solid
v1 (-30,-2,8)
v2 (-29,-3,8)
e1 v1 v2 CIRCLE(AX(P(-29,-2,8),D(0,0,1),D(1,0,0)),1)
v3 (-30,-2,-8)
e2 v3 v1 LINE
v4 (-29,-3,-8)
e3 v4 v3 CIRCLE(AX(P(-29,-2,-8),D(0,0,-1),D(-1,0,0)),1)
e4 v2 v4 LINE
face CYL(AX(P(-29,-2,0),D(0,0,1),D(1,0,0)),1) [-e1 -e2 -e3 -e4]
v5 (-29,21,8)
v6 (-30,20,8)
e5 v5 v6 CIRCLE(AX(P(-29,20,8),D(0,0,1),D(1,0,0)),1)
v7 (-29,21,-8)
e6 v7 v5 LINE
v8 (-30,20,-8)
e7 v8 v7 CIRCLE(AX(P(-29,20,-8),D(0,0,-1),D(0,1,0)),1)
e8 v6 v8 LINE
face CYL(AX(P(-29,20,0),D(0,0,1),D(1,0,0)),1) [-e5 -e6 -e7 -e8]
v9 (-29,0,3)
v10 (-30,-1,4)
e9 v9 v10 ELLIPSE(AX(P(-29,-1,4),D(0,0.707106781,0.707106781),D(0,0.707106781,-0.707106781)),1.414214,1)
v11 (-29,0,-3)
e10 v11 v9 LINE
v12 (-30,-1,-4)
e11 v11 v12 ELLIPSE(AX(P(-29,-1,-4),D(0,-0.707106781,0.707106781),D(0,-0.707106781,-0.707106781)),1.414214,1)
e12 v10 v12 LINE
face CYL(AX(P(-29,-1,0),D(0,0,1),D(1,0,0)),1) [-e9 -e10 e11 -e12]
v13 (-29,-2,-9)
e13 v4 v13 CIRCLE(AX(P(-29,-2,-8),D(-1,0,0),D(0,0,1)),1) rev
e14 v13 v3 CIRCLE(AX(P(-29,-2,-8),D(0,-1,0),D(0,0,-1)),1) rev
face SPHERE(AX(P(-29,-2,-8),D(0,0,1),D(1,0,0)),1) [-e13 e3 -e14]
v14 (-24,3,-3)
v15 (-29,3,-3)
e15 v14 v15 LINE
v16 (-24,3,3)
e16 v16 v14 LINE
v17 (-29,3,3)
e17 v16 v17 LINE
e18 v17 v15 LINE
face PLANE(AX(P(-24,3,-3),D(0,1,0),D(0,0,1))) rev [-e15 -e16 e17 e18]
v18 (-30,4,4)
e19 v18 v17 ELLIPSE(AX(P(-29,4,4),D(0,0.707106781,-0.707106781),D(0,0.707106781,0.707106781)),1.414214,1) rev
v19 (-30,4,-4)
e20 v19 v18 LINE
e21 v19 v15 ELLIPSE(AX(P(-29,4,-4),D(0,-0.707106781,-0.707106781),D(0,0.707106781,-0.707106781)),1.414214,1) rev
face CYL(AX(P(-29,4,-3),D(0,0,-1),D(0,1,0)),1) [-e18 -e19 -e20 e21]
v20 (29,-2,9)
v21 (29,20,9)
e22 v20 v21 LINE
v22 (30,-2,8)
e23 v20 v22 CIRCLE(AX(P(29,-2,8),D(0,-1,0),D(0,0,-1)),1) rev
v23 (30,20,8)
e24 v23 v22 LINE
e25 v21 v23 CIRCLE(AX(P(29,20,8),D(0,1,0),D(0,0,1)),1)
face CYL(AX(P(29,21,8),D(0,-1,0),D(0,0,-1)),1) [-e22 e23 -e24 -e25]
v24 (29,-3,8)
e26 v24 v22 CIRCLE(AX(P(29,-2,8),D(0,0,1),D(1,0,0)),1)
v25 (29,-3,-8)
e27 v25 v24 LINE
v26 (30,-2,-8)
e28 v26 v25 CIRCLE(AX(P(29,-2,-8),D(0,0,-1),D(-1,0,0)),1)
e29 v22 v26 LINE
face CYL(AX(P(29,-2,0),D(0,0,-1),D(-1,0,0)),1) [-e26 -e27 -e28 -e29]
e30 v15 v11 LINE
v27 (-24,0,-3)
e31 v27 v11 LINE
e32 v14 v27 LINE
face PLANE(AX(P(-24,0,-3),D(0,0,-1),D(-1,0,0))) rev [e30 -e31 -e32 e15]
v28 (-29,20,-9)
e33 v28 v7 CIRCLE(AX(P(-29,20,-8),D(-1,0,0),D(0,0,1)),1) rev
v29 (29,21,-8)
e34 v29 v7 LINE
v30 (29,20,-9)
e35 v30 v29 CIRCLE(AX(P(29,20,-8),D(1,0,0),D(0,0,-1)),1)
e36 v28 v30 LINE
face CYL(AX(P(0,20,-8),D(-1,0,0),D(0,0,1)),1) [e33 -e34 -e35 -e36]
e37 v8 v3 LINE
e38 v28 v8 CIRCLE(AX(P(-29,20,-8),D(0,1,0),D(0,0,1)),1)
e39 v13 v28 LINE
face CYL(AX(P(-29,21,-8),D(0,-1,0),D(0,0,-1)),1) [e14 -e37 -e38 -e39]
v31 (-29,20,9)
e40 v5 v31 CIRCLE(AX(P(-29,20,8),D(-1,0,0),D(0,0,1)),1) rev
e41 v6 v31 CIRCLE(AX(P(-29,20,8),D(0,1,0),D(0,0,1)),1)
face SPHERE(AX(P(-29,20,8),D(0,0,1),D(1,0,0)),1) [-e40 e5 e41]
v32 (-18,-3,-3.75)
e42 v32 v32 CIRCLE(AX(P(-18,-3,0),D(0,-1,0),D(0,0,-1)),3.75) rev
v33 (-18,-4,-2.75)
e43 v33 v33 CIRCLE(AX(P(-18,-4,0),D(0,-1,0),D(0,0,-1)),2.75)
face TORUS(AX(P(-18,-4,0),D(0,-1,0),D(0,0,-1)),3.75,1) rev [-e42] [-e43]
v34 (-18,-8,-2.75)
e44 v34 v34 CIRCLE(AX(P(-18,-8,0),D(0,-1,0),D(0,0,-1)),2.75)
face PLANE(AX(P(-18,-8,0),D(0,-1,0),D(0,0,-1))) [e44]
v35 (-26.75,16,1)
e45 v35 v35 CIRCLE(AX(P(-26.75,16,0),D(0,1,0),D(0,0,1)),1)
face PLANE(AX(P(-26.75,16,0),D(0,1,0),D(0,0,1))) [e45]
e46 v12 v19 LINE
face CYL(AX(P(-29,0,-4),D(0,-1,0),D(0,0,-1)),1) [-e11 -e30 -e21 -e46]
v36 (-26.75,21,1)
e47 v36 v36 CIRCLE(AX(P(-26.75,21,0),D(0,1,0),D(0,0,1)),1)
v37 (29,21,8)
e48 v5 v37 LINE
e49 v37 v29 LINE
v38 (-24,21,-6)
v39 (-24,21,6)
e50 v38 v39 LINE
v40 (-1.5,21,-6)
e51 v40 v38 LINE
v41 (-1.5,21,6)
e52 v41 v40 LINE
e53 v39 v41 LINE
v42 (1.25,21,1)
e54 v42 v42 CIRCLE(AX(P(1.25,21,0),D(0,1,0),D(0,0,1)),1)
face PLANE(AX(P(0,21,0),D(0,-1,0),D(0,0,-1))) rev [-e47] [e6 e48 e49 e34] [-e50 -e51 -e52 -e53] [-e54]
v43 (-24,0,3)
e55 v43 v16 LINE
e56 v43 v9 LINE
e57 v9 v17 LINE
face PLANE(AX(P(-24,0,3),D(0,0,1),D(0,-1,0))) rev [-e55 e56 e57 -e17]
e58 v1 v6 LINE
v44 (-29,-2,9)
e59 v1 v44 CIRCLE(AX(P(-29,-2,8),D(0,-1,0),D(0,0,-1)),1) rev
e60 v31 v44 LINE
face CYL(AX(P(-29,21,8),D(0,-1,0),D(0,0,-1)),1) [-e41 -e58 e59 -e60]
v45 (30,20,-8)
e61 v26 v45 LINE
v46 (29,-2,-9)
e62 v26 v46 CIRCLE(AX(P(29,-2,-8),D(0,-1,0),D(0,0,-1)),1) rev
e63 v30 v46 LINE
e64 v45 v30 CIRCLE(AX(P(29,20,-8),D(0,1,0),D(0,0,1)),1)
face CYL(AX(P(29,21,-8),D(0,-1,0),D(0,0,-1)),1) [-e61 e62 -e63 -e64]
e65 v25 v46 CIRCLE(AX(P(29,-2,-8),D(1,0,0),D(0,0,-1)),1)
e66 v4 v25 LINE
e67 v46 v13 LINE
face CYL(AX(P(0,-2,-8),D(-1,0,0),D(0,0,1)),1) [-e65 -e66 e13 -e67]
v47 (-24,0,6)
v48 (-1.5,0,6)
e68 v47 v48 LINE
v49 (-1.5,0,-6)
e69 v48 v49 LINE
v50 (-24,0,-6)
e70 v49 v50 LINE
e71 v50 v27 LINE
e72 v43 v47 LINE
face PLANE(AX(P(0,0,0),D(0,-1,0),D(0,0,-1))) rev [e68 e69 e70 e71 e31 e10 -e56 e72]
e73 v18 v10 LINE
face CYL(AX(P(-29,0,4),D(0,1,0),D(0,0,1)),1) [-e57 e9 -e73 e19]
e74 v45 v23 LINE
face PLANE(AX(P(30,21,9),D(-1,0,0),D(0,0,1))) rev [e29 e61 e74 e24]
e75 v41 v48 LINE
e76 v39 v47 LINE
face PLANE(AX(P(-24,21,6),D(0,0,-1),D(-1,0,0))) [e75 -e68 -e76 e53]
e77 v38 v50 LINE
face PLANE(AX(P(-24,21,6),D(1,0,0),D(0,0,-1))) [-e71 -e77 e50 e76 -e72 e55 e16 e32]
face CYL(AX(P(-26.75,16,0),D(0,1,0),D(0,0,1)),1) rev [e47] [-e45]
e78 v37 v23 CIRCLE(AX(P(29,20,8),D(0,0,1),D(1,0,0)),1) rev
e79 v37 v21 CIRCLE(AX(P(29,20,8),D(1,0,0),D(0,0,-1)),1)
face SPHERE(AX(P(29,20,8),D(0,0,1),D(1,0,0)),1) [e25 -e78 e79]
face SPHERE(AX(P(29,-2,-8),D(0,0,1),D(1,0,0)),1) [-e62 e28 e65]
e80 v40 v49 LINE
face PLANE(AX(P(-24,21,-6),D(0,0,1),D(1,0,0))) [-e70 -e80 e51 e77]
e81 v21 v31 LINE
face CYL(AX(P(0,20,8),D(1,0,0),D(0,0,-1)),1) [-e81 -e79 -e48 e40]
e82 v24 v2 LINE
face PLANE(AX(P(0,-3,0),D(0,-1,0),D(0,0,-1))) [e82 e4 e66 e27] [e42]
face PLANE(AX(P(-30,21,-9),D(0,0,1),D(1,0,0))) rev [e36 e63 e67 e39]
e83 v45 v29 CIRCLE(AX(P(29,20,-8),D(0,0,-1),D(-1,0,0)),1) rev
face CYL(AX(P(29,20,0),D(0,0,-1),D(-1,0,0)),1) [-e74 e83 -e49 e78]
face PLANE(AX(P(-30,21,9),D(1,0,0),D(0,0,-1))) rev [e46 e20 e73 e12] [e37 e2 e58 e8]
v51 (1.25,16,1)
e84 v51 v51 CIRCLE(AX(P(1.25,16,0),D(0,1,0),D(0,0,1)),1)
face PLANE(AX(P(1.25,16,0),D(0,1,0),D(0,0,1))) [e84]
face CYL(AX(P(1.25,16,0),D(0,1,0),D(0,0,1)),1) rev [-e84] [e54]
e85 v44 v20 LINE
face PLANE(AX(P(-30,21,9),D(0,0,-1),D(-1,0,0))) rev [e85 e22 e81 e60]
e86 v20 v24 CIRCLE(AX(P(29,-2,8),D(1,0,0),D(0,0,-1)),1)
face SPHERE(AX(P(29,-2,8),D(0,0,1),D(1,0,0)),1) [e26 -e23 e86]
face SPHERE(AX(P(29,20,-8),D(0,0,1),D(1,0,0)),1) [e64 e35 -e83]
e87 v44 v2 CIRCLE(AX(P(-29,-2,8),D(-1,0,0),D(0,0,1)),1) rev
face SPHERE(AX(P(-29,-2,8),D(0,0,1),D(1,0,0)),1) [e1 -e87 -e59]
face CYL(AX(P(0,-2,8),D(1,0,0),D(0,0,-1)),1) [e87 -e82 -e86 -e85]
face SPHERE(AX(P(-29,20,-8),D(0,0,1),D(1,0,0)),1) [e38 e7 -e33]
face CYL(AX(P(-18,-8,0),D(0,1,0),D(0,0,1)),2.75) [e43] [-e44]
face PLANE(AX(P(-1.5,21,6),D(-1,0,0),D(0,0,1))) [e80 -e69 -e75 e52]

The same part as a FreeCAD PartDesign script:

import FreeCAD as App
import Part
import Sketcher
from FreeCAD import Vector


def edges_at(feature, points):
    """Names of the edges that pass closest to the given points."""
    edges = feature.Shape.Edges
    near = lambda p: min(range(len(edges)), key=lambda i: edges[i].distToShape(Part.Vertex(*p))[0])
    return sorted({f"Edge{near(p) + 1}" for p in points})

doc = App.newDocument("Part")
params = doc.addObject("Spreadsheet::Sheet", "Params")
for row, (alias, value) in enumerate([
    ("sketch1_width", "60 mm"),
    ("sketch1_height", "18 mm"),
    ("sketch1_height2", "12 mm"),
    ("sketch1_width2", "22.5 mm"),
    ("pad1_length", "21 mm"),
    ("sketch2_width", "60 mm"),
    ("sketch2_height", "18 mm"),
    ("pad2_length", "3 mm"),
    ("sketch3_width", "3 mm"),
    ("sketch3_height", "6 mm"),
    ("pocket1_length", "6 mm"),
    ("sketch4_diameter", "5.5 mm"),
    ("pad3_length", "5 mm"),
    ("sketch5_diameter", "2 mm"),
    ("pocket2_length", "5 mm"),
    ("fillet_radius", "1 mm"),
], start=1):
    params.set(f"A{row}", alias)
    params.set(f"B{row}", "=" + value)
    params.setAlias(f"B{row}", alias)

body = doc.addObject("PartDesign::Body", "Body")

sketch1 = doc.addObject("Sketcher::SketchObject", "Sketch")
body.addObject(sketch1)
sketch1.AttachmentSupport = (doc.XZ_Plane, [""])
sketch1.MapMode = "FlatFace"
sketch1.addGeometry([
    Part.LineSegment(Vector(-30, -9, 0), Vector(-30, 9, 0)),
    Part.LineSegment(Vector(-30, 9, 0), Vector(30, 9, 0)),
    Part.LineSegment(Vector(30, 9, 0), Vector(30, -9, 0)),
    Part.LineSegment(Vector(30, -9, 0), Vector(-30, -9, 0)),
    Part.LineSegment(Vector(-2, 6, 0), Vector(-24, 6, 0)),
    Part.LineSegment(Vector(-24, 6, 0), Vector(-24, -6, 0)),
    Part.LineSegment(Vector(-24, -6, 0), Vector(-2, -6, 0)),
    Part.LineSegment(Vector(-2, -6, 0), Vector(-2, 6, 0)),
], False)
sketch1.addConstraint([
    Sketcher.Constraint("Coincident", 0, 2, 1, 1),
    Sketcher.Constraint("Coincident", 1, 2, 2, 1),
    Sketcher.Constraint("Coincident", 2, 2, 3, 1),
    Sketcher.Constraint("Coincident", 3, 2, 0, 1),
    Sketcher.Constraint("Coincident", 4, 2, 5, 1),
    Sketcher.Constraint("Coincident", 5, 2, 6, 1),
    Sketcher.Constraint("Coincident", 6, 2, 7, 1),
    Sketcher.Constraint("Coincident", 7, 2, 4, 1),
    Sketcher.Constraint("Vertical", 0),
    Sketcher.Constraint("Horizontal", 1),
    Sketcher.Constraint("Vertical", 2),
    Sketcher.Constraint("Horizontal", 3),
    Sketcher.Constraint("Horizontal", 4),
    Sketcher.Constraint("Vertical", 5),
    Sketcher.Constraint("Horizontal", 6),
    Sketcher.Constraint("Vertical", 7),
    Sketcher.Constraint("Symmetric", 0, 2, 2, 2, -1, 1),
    Sketcher.Constraint("DistanceX", 1, 1, 1, 2, 60.0),
    Sketcher.Constraint("DistanceY", 0, 1, 0, 2, 18.0),
    Sketcher.Constraint("DistanceY", 5, 2, 5, 1, 12.0),
    Sketcher.Constraint("DistanceX", 4, 2, 4, 1, 22.5),
    Sketcher.Constraint("DistanceX", 4, 2, -1, 1, 24.0),
    Sketcher.Constraint("DistanceY", -1, 1, 4, 2, 6.0),
])
sketch1.setExpression("Constraints[17]", "Params.sketch1_width")
sketch1.setExpression("Constraints[18]", "Params.sketch1_height")
sketch1.setExpression("Constraints[19]", "Params.sketch1_height2")
sketch1.setExpression("Constraints[20]", "Params.sketch1_width2")
pad1 = doc.addObject("PartDesign::Pad", "Pad")
body.addObject(pad1)
pad1.Profile = sketch1
pad1.setExpression("Length", "Params.pad1_length")
pad1.Reversed = True

sketch2 = doc.addObject("Sketcher::SketchObject", "Sketch001")
body.addObject(sketch2)
sketch2.AttachmentSupport = (doc.XZ_Plane, [""])
sketch2.MapMode = "FlatFace"
sketch2.addGeometry([
    Part.LineSegment(Vector(-30, 9, 0), Vector(-30, -9, 0)),
    Part.LineSegment(Vector(-30, -9, 0), Vector(30, -9, 0)),
    Part.LineSegment(Vector(30, -9, 0), Vector(30, 9, 0)),
    Part.LineSegment(Vector(30, 9, 0), Vector(-30, 9, 0)),
], False)
sketch2.addConstraint([
    Sketcher.Constraint("Coincident", 0, 2, 1, 1),
    Sketcher.Constraint("Coincident", 1, 2, 2, 1),
    Sketcher.Constraint("Coincident", 2, 2, 3, 1),
    Sketcher.Constraint("Coincident", 3, 2, 0, 1),
    Sketcher.Constraint("Vertical", 0),
    Sketcher.Constraint("Horizontal", 1),
    Sketcher.Constraint("Vertical", 2),
    Sketcher.Constraint("Horizontal", 3),
    Sketcher.Constraint("Symmetric", 0, 2, 2, 2, -1, 1),
    Sketcher.Constraint("DistanceX", 1, 1, 1, 2, 60.0),
    Sketcher.Constraint("DistanceY", 0, 2, 0, 1, 18.0),
])
sketch2.setExpression("Constraints[9]", "Params.sketch2_width")
sketch2.setExpression("Constraints[10]", "Params.sketch2_height")
pad2 = doc.addObject("PartDesign::Pad", "Pad001")
body.addObject(pad2)
pad2.Profile = sketch2
pad2.setExpression("Length", "Params.pad2_length")

sketch3 = doc.addObject("Sketcher::SketchObject", "Sketch002")
body.addObject(sketch3)
sketch3.AttachmentSupport = (doc.YZ_Plane, [""])
sketch3.MapMode = "FlatFace"
sketch3.AttachmentOffset = App.Placement(Vector(0, 0, -30), App.Rotation())
sketch3.addGeometry([
    Part.LineSegment(Vector(3, -3, 0), Vector(0, -3, 0)),
    Part.LineSegment(Vector(0, -3, 0), Vector(0, 3, 0)),
    Part.LineSegment(Vector(0, 3, 0), Vector(3, 3, 0)),
    Part.LineSegment(Vector(3, 3, 0), Vector(3, -3, 0)),
], False)
sketch3.addConstraint([
    Sketcher.Constraint("Coincident", 0, 2, 1, 1),
    Sketcher.Constraint("Coincident", 1, 2, 2, 1),
    Sketcher.Constraint("Coincident", 2, 2, 3, 1),
    Sketcher.Constraint("Coincident", 3, 2, 0, 1),
    Sketcher.Constraint("Horizontal", 0),
    Sketcher.Constraint("Vertical", 1),
    Sketcher.Constraint("Horizontal", 2),
    Sketcher.Constraint("Vertical", 3),
    Sketcher.Constraint("Symmetric", 0, 2, 1, 2, -1, 1),
    Sketcher.Constraint("DistanceX", 0, 2, 0, 1, 3.0),
    Sketcher.Constraint("DistanceY", 1, 1, 1, 2, 6.0),
])
sketch3.setExpression("Constraints[9]", "Params.sketch3_width")
sketch3.setExpression("Constraints[10]", "Params.sketch3_height")
pocket1 = doc.addObject("PartDesign::Pocket", "Pocket")
body.addObject(pocket1)
pocket1.Profile = sketch3
pocket1.setExpression("Length", "Params.pocket1_length")
pocket1.Reversed = True

sketch4 = doc.addObject("Sketcher::SketchObject", "Sketch003")
body.addObject(sketch4)
sketch4.AttachmentSupport = (doc.XZ_Plane, [""])
sketch4.MapMode = "FlatFace"
sketch4.AttachmentOffset = App.Placement(Vector(0, 0, 3), App.Rotation())
sketch4.addGeometry(Part.Circle(Vector(-18, 0, 0), Vector(0, 0, 1), 2.8), False)
sketch4.addConstraint([
    Sketcher.Constraint("PointOnObject", 0, 3, -1),
    Sketcher.Constraint("Diameter", 0, 5.5),
    Sketcher.Constraint("DistanceX", 0, 3, -1, 1, 18.0),
])
sketch4.setExpression("Constraints[1]", "Params.sketch4_diameter")
pad3 = doc.addObject("PartDesign::Pad", "Pad002")
body.addObject(pad3)
pad3.Profile = sketch4
pad3.setExpression("Length", "Params.pad3_length")

sketch5 = doc.addObject("Sketcher::SketchObject", "Sketch004")
body.addObject(sketch5)
sketch5.AttachmentSupport = (doc.XZ_Plane, [""])
sketch5.MapMode = "FlatFace"
sketch5.AttachmentOffset = App.Placement(Vector(0, 0, -21), App.Rotation())
sketch5.addGeometry([
    Part.Circle(Vector(-26.8, 0, 0), Vector(0, 0, 1), 1),
    Part.Circle(Vector(1.2, 0, 0), Vector(0, 0, 1), 1),
], False)
sketch5.addConstraint([
    Sketcher.Constraint("Equal", 0, 1),
    Sketcher.Constraint("PointOnObject", 0, 3, -1),
    Sketcher.Constraint("PointOnObject", 1, 3, -1),
    Sketcher.Constraint("Diameter", 0, 2.0),
    Sketcher.Constraint("DistanceX", 0, 3, 1, 3, 28.0),
    Sketcher.Constraint("DistanceX", 0, 3, -1, 1, 26.75),
])
sketch5.setExpression("Constraints[3]", "Params.sketch5_diameter")
pocket2 = doc.addObject("PartDesign::Pocket", "Pocket001")
body.addObject(pocket2)
pocket2.Profile = sketch5
pocket2.setExpression("Length", "Params.pocket2_length")
pocket2.Reversed = True
doc.recompute()

fillet = doc.addObject("PartDesign::Fillet", "Fillet")
body.addObject(fillet)
fillet.Base = (pocket2, edges_at(pocket2, [
    (-30, 21, 0),
    (0, 21, 9),
    (-30, -3, 0),
    (0, -3, -9),
    (30, -3, 0),
    (0, -3, 9),
    (30, 21, 0),
    (-30, 1.5, -3),
    (-30, 0, 0),
    (-30, 1.5, 3),
    (-30, 3, 0),
    (-18, -3, 2.75),
    (0, 21, -9),
    (30, 9, 9),
    (-30, 9, 9),
    (-30, 9, -9),
    (30, 9, -9),
]))
fillet.setExpression("Radius", "Params.fillet_radius")

doc.recompute()
